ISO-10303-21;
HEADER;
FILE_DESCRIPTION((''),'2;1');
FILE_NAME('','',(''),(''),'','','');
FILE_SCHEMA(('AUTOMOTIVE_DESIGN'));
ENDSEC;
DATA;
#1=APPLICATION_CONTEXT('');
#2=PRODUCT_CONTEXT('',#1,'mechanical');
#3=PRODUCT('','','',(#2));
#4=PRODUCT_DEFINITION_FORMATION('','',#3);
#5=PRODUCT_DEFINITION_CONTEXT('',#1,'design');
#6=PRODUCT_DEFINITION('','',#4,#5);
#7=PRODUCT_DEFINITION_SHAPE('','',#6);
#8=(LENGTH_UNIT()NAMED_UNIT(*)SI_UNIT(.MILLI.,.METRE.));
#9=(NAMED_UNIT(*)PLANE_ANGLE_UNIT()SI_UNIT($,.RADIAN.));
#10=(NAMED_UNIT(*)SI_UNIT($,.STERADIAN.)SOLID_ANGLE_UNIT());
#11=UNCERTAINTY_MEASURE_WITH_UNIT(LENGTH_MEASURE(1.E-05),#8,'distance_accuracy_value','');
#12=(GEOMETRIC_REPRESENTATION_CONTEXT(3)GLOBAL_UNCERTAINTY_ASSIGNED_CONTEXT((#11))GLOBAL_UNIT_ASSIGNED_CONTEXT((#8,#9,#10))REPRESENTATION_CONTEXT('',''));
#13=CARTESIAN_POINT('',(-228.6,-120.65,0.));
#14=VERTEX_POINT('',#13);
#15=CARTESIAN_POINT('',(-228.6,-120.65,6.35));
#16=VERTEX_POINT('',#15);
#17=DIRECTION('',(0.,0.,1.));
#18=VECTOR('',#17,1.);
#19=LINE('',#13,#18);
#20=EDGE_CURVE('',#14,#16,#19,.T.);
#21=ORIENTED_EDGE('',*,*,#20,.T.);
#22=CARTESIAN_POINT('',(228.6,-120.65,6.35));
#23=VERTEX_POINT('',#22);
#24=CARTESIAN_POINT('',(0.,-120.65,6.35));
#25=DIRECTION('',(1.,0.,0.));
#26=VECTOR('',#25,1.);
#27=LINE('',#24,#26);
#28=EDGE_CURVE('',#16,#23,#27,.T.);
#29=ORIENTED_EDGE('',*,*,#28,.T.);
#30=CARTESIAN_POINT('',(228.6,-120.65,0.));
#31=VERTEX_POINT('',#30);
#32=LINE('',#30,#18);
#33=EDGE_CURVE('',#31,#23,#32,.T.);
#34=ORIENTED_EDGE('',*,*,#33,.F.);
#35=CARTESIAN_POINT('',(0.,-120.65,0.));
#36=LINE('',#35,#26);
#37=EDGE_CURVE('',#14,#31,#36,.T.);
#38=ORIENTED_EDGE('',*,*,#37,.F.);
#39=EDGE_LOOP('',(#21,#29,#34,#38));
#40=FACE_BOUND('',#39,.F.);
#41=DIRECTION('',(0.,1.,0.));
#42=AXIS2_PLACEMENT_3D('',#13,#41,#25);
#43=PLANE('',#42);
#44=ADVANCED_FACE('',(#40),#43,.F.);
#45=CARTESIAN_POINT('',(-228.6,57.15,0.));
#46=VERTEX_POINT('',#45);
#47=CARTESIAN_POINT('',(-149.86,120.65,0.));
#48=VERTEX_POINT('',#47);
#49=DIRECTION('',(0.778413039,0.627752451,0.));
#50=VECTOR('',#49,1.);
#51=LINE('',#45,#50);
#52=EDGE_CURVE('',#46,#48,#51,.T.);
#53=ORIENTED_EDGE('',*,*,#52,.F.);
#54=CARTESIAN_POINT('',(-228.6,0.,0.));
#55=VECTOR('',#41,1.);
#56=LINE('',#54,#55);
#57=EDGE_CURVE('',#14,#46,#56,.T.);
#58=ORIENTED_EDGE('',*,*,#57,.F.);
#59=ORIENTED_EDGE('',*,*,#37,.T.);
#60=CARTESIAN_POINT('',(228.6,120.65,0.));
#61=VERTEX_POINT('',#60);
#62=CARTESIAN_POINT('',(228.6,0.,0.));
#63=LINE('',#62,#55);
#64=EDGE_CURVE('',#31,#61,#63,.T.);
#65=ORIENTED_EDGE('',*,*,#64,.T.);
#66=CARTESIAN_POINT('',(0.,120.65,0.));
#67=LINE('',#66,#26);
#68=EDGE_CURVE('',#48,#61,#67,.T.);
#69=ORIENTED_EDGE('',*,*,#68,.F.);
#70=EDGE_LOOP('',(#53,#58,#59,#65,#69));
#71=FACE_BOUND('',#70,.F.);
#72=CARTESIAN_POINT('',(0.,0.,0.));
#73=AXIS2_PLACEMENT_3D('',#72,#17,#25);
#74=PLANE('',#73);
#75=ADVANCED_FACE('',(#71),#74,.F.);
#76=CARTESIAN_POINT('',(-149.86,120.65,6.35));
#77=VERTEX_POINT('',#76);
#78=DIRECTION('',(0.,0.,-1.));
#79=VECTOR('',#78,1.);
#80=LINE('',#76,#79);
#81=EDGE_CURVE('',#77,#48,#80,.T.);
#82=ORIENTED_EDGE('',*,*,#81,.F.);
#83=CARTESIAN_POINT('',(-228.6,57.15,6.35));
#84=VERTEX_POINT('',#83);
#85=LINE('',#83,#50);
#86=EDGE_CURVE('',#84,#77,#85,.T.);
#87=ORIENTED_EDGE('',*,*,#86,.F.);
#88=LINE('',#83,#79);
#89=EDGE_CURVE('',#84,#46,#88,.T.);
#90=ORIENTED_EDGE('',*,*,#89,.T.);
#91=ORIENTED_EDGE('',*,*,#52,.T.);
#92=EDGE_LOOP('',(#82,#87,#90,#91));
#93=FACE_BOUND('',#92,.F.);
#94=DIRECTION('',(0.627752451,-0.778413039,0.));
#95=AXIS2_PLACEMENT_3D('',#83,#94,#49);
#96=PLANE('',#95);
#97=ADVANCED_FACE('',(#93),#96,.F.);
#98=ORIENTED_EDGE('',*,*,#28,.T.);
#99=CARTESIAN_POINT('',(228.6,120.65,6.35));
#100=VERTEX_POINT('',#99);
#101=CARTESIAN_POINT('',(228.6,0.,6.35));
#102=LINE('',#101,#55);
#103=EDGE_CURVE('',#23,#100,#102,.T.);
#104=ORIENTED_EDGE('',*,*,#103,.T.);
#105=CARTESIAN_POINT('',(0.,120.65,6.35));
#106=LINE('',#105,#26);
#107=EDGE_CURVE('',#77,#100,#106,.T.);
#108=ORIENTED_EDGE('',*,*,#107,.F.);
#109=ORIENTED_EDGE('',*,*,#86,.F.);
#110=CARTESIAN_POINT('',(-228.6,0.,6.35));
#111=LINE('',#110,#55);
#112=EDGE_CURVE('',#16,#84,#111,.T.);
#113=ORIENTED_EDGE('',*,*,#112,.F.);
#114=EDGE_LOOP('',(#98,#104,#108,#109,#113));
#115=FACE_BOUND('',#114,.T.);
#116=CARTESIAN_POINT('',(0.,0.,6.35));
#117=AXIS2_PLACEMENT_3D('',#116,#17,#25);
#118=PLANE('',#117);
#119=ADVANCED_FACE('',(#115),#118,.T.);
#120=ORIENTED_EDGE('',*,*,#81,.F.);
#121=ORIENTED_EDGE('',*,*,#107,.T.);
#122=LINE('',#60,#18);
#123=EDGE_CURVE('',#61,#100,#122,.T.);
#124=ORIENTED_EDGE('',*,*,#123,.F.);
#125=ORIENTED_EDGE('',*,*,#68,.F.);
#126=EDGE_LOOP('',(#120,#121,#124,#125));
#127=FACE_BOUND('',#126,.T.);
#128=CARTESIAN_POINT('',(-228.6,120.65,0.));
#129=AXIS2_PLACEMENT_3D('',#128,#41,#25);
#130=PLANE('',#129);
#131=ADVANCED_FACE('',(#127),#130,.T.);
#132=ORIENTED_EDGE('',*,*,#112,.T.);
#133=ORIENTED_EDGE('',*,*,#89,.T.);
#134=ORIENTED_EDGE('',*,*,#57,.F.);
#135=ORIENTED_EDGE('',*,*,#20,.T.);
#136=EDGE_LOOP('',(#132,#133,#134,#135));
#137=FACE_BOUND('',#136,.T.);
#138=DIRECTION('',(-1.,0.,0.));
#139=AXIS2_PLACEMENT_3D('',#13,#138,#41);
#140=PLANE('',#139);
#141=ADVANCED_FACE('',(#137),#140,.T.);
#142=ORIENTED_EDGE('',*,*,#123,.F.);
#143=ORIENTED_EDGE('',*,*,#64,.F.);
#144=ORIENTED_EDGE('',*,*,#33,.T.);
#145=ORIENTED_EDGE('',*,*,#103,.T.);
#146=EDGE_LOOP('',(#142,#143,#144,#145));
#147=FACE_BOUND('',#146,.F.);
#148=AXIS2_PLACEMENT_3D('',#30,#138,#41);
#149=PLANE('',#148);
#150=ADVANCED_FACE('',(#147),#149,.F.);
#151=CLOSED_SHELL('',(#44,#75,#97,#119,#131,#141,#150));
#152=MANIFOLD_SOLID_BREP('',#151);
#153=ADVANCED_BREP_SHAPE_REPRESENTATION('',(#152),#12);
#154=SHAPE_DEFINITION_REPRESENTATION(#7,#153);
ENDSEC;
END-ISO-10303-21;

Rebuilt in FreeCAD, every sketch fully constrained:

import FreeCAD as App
import Part
import Sketcher
Q = App.Units.Quantity


def add_polygon(sketch, points):
    """Adds a closed chain of lines whose ends are joined by coincident constraints."""
    first, n = sketch.GeometryCount, len(points)
    for a, b in zip(points, points[1:] + points[:1]):
        sketch.addGeometry(Part.LineSegment(App.Vector(*a, 0), App.Vector(*b, 0)), False)
    for i in range(n):
        sketch.addConstraint(Sketcher.Constraint("Coincident", first + i, 2, first + (i + 1) % n, 1))

doc = App.newDocument("Part")
params = doc.addObject("Spreadsheet::Sheet", "Params")
for row, (alias, value) in enumerate([
    ("sketch1_width", "18 in"),
    ("sketch1_height", "9.5 in"),
    ("pad1_length", "0.25 in"),
    ("sketch2_width", "3.1 in"),
    ("sketch2_height", "2.5 in"),
    ("pocket1_length", "0.25 in"),
], start=1):
    params.set(f"A{row}", alias)
    params.set(f"B{row}", "=" + value)
    params.setAlias(f"B{row}", alias)

body = doc.addObject("PartDesign::Body", "Body")

sketch1 = body.newObject("Sketcher::SketchObject", "Sketch")
sketch1.AttachmentSupport = (doc.getObject("XY_Plane"), [""])
sketch1.MapMode = "FlatFace"
add_polygon(sketch1, [(-229, 121), (-229, -121), (229, -121), (229, 121)])
sketch1.addConstraint([
    Sketcher.Constraint("Vertical", 0),
    Sketcher.Constraint("Horizontal", 1),
    Sketcher.Constraint("Vertical", 2),
    Sketcher.Constraint("Horizontal", 3),
    Sketcher.Constraint("Symmetric", 0, 2, 2, 2, -1, 1),
    Sketcher.Constraint("DistanceX", 1, 1, 1, 2, Q("18 in")),
    Sketcher.Constraint("DistanceY", 0, 2, 0, 1, Q("9.5 in")),
])
sketch1.setExpression("Constraints[9]", "Params.sketch1_width")
sketch1.setExpression("Constraints[10]", "Params.sketch1_height")
pad1 = body.newObject("PartDesign::Pad", "Pad")
pad1.Profile = sketch1
pad1.setExpression("Length", "Params.pad1_length")

sketch2 = body.newObject("Sketcher::SketchObject", "Sketch001")
sketch2.AttachmentSupport = (doc.getObject("XY_Plane"), [""])
sketch2.MapMode = "FlatFace"
sketch2.AttachmentOffset = App.Placement(App.Vector(0, 0, 0.25 * 25.4), App.Rotation())
add_polygon(sketch2, [(-229, 121), (-229, 57), (-150, 121)])
sketch2.addConstraint([
    Sketcher.Constraint("Vertical", 0),
    Sketcher.Constraint("Horizontal", 2),
    Sketcher.Constraint("DistanceX", 2, 2, 2, 1, Q("3.1 in")),
    Sketcher.Constraint("DistanceY", 0, 2, 0, 1, Q("2.5 in")),
    Sketcher.Constraint("DistanceX", 0, 2, -1, 1, Q("9 in")),
    Sketcher.Constraint("DistanceY", -1, 1, 0, 2, Q("2.25 in")),
])
sketch2.setExpression("Constraints[5]", "Params.sketch2_width")
sketch2.setExpression("Constraints[6]", "Params.sketch2_height")
pocket1 = body.newObject("PartDesign::Pocket", "Pocket")
pocket1.Profile = sketch2
pocket1.setExpression("Length", "Params.pocket1_length")

doc.recompute()
